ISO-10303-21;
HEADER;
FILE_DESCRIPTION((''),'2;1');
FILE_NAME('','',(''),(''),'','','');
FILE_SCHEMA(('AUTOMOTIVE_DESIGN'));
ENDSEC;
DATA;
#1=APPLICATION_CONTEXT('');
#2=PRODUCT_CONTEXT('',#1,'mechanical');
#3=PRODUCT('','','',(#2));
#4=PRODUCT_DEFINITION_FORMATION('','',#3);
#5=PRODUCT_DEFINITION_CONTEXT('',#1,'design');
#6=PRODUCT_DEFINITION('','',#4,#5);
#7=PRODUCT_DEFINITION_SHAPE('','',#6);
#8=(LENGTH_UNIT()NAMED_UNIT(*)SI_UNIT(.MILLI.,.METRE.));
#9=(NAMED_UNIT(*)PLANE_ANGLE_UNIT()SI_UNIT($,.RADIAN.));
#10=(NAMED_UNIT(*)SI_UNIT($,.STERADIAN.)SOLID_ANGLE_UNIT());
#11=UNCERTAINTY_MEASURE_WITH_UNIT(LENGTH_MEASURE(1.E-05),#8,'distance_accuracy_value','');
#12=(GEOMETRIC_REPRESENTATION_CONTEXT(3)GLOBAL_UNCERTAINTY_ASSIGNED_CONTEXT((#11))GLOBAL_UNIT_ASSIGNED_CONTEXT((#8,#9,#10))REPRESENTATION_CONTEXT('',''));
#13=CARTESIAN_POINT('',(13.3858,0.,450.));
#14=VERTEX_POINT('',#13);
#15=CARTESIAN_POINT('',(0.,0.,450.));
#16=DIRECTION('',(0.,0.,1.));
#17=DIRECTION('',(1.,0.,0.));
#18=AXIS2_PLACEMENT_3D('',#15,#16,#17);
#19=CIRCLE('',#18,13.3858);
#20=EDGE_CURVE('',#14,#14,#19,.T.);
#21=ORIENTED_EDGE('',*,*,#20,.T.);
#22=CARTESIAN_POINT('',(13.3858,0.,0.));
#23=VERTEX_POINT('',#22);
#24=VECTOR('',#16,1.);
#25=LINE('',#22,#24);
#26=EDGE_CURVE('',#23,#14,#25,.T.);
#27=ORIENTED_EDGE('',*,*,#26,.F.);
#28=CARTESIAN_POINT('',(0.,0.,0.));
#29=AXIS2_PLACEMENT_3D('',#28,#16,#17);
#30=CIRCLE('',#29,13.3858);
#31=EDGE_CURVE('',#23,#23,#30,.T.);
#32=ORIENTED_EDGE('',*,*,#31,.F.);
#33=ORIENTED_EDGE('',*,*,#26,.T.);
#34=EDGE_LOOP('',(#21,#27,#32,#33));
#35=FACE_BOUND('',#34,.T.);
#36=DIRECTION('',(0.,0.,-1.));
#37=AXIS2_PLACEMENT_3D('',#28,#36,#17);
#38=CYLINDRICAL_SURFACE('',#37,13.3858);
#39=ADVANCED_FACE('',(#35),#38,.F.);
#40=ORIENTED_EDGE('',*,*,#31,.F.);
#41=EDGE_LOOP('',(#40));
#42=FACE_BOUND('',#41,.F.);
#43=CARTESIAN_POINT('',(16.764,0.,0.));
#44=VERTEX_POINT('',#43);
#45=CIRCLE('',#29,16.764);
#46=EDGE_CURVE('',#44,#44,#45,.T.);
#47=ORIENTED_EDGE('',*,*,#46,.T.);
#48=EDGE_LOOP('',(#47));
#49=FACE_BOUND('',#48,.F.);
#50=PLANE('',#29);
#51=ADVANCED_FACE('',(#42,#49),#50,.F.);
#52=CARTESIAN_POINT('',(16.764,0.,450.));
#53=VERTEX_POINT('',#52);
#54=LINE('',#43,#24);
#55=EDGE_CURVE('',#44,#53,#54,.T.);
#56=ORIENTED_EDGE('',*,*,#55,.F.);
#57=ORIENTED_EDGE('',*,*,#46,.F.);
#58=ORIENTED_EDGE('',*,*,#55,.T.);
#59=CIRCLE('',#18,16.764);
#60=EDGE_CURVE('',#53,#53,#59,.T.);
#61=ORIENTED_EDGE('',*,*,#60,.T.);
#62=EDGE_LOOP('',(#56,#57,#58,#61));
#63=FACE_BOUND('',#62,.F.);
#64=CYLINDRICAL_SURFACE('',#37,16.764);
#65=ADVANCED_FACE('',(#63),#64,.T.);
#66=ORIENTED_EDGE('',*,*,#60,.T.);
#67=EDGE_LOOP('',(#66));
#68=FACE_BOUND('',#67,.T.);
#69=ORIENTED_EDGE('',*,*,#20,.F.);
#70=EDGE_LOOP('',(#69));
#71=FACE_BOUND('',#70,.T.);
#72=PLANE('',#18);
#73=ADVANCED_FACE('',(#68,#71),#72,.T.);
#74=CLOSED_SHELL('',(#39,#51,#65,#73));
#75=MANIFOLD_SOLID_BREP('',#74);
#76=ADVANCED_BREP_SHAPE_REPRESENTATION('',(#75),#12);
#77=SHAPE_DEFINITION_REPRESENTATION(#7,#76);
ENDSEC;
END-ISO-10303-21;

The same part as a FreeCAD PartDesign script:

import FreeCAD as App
import Part
import Sketcher
Q = App.Units.Quantity

doc = App.newDocument("Part")
body = doc.addObject("PartDesign::Body", "Body")

# Sketch on XY plane
sketch1 = body.newObject("Sketcher::SketchObject", "Sketch")
sketch1.AttachmentSupport = (doc.getObject("XY_Plane"), [""])
sketch1.MapMode = "FlatFace"
sketch1.addGeometry([
    Part.Circle(App.Vector(0, 0, 0), App.Vector(0, 0, 1), 17),
    Part.Circle(App.Vector(0, 0, 0), App.Vector(0, 0, 1), 13),
], False)
sketch1.addConstraint([
    Sketcher.Constraint("Coincident", 0, 3, -1, 1),
    Sketcher.Constraint("Coincident", 1, 3, -1, 1),
    Sketcher.Constraint("Diameter", 0, Q("1.32 in")),
    Sketcher.Constraint("Diameter", 1, Q("1.054 in")),
])
pad1 = body.newObject("PartDesign::Pad", "Pad")
pad1.Profile = sketch1
pad1.Length = 450

doc.recompute()
